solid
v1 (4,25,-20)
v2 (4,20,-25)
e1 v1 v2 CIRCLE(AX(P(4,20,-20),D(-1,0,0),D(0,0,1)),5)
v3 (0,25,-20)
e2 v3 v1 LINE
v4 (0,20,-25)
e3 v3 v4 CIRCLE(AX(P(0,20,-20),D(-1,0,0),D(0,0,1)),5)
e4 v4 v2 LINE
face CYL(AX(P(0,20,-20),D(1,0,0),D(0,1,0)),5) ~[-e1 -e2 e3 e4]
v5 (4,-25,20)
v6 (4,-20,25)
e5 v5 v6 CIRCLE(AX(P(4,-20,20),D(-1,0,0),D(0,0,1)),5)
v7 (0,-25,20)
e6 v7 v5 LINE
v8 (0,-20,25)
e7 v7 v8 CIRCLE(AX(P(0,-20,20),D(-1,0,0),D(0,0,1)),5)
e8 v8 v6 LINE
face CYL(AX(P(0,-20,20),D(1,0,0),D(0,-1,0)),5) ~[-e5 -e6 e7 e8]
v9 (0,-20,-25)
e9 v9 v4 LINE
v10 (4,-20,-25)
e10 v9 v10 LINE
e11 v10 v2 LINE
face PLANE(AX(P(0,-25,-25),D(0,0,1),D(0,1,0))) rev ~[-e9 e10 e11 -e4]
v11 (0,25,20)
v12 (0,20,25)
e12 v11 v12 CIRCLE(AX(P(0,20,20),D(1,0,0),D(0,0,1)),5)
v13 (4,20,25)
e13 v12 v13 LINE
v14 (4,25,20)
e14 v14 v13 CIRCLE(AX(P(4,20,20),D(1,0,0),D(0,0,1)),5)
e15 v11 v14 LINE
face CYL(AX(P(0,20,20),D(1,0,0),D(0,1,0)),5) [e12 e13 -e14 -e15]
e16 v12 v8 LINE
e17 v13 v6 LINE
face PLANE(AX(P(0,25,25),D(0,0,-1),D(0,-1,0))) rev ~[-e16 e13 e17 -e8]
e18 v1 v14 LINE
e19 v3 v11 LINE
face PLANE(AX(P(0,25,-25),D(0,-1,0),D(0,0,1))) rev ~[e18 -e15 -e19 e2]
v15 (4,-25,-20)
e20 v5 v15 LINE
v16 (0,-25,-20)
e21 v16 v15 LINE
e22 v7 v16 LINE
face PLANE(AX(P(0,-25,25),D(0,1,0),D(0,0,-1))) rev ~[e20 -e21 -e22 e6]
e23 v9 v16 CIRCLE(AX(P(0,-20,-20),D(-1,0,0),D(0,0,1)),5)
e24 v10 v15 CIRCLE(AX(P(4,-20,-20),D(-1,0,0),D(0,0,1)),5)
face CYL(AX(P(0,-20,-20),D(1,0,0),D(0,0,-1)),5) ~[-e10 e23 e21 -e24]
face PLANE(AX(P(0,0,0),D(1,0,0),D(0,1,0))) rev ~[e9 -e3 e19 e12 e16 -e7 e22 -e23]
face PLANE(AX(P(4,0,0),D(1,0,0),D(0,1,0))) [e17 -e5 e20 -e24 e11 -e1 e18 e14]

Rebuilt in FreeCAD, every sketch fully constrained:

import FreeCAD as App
import Part
import Sketcher
Q = App.Units.Quantity


def edges_at(feature, points):
    """Names of the edges that pass closest to the given points."""
    edges = feature.Shape.Edges
    near = lambda p: min(range(len(edges)), key=lambda i: edges[i].distToShape(Part.Vertex(*p))[0])
    return sorted({f"Edge{near(p) + 1}" for p in points})


def add_polygon(sketch, points):
    """Adds a closed chain of lines whose ends are joined by coincident constraints."""
    first, n = sketch.GeometryCount, len(points)
    for a, b in zip(points, points[1:] + points[:1]):
        sketch.addGeometry(Part.LineSegment(App.Vector(*a, 0), App.Vector(*b, 0)), False)
    for i in range(n):
        sketch.addConstraint(Sketcher.Constraint("Coincident", first + i, 2, first + (i + 1) % n, 1))

doc = App.newDocument("Part")
body = doc.addObject("PartDesign::Body", "Body")

sketch1 = body.newObject("Sketcher::SketchObject", "Sketch")
sketch1.AttachmentSupport = (doc.getObject("YZ_Plane"), [""])
sketch1.MapMode = "FlatFace"
add_polygon(sketch1, [(25, -25), (25, 25), (-25, 25), (-25, -25)])
sketch1.addConstraint([
    Sketcher.Constraint("Vertical", 0),
    Sketcher.Constraint("Horizontal", 1),
    Sketcher.Constraint("Vertical", 2),
    Sketcher.Constraint("Horizontal", 3),
    Sketcher.Constraint("Symmetric", 0, 2, 2, 2, -1, 1),
    Sketcher.Constraint("Equal", 3, 0),
    Sketcher.Constraint("DistanceX", 1, 2, 1, 1, Q("50 mm")),
])
pad1 = body.newObject("PartDesign::Pad", "Pad")
pad1.Profile = sketch1
pad1.Length = 4
doc.recompute()

fillet = body.newObject("PartDesign::Fillet", "Fillet")
fillet.Base = (pad1, edges_at(pad1, [
    (2, 25, 25),
    (2, -25, 25),
    (2, 25, -25),
    (2, -25, -25),
]))
fillet.Radius = 5

doc.recompute()
